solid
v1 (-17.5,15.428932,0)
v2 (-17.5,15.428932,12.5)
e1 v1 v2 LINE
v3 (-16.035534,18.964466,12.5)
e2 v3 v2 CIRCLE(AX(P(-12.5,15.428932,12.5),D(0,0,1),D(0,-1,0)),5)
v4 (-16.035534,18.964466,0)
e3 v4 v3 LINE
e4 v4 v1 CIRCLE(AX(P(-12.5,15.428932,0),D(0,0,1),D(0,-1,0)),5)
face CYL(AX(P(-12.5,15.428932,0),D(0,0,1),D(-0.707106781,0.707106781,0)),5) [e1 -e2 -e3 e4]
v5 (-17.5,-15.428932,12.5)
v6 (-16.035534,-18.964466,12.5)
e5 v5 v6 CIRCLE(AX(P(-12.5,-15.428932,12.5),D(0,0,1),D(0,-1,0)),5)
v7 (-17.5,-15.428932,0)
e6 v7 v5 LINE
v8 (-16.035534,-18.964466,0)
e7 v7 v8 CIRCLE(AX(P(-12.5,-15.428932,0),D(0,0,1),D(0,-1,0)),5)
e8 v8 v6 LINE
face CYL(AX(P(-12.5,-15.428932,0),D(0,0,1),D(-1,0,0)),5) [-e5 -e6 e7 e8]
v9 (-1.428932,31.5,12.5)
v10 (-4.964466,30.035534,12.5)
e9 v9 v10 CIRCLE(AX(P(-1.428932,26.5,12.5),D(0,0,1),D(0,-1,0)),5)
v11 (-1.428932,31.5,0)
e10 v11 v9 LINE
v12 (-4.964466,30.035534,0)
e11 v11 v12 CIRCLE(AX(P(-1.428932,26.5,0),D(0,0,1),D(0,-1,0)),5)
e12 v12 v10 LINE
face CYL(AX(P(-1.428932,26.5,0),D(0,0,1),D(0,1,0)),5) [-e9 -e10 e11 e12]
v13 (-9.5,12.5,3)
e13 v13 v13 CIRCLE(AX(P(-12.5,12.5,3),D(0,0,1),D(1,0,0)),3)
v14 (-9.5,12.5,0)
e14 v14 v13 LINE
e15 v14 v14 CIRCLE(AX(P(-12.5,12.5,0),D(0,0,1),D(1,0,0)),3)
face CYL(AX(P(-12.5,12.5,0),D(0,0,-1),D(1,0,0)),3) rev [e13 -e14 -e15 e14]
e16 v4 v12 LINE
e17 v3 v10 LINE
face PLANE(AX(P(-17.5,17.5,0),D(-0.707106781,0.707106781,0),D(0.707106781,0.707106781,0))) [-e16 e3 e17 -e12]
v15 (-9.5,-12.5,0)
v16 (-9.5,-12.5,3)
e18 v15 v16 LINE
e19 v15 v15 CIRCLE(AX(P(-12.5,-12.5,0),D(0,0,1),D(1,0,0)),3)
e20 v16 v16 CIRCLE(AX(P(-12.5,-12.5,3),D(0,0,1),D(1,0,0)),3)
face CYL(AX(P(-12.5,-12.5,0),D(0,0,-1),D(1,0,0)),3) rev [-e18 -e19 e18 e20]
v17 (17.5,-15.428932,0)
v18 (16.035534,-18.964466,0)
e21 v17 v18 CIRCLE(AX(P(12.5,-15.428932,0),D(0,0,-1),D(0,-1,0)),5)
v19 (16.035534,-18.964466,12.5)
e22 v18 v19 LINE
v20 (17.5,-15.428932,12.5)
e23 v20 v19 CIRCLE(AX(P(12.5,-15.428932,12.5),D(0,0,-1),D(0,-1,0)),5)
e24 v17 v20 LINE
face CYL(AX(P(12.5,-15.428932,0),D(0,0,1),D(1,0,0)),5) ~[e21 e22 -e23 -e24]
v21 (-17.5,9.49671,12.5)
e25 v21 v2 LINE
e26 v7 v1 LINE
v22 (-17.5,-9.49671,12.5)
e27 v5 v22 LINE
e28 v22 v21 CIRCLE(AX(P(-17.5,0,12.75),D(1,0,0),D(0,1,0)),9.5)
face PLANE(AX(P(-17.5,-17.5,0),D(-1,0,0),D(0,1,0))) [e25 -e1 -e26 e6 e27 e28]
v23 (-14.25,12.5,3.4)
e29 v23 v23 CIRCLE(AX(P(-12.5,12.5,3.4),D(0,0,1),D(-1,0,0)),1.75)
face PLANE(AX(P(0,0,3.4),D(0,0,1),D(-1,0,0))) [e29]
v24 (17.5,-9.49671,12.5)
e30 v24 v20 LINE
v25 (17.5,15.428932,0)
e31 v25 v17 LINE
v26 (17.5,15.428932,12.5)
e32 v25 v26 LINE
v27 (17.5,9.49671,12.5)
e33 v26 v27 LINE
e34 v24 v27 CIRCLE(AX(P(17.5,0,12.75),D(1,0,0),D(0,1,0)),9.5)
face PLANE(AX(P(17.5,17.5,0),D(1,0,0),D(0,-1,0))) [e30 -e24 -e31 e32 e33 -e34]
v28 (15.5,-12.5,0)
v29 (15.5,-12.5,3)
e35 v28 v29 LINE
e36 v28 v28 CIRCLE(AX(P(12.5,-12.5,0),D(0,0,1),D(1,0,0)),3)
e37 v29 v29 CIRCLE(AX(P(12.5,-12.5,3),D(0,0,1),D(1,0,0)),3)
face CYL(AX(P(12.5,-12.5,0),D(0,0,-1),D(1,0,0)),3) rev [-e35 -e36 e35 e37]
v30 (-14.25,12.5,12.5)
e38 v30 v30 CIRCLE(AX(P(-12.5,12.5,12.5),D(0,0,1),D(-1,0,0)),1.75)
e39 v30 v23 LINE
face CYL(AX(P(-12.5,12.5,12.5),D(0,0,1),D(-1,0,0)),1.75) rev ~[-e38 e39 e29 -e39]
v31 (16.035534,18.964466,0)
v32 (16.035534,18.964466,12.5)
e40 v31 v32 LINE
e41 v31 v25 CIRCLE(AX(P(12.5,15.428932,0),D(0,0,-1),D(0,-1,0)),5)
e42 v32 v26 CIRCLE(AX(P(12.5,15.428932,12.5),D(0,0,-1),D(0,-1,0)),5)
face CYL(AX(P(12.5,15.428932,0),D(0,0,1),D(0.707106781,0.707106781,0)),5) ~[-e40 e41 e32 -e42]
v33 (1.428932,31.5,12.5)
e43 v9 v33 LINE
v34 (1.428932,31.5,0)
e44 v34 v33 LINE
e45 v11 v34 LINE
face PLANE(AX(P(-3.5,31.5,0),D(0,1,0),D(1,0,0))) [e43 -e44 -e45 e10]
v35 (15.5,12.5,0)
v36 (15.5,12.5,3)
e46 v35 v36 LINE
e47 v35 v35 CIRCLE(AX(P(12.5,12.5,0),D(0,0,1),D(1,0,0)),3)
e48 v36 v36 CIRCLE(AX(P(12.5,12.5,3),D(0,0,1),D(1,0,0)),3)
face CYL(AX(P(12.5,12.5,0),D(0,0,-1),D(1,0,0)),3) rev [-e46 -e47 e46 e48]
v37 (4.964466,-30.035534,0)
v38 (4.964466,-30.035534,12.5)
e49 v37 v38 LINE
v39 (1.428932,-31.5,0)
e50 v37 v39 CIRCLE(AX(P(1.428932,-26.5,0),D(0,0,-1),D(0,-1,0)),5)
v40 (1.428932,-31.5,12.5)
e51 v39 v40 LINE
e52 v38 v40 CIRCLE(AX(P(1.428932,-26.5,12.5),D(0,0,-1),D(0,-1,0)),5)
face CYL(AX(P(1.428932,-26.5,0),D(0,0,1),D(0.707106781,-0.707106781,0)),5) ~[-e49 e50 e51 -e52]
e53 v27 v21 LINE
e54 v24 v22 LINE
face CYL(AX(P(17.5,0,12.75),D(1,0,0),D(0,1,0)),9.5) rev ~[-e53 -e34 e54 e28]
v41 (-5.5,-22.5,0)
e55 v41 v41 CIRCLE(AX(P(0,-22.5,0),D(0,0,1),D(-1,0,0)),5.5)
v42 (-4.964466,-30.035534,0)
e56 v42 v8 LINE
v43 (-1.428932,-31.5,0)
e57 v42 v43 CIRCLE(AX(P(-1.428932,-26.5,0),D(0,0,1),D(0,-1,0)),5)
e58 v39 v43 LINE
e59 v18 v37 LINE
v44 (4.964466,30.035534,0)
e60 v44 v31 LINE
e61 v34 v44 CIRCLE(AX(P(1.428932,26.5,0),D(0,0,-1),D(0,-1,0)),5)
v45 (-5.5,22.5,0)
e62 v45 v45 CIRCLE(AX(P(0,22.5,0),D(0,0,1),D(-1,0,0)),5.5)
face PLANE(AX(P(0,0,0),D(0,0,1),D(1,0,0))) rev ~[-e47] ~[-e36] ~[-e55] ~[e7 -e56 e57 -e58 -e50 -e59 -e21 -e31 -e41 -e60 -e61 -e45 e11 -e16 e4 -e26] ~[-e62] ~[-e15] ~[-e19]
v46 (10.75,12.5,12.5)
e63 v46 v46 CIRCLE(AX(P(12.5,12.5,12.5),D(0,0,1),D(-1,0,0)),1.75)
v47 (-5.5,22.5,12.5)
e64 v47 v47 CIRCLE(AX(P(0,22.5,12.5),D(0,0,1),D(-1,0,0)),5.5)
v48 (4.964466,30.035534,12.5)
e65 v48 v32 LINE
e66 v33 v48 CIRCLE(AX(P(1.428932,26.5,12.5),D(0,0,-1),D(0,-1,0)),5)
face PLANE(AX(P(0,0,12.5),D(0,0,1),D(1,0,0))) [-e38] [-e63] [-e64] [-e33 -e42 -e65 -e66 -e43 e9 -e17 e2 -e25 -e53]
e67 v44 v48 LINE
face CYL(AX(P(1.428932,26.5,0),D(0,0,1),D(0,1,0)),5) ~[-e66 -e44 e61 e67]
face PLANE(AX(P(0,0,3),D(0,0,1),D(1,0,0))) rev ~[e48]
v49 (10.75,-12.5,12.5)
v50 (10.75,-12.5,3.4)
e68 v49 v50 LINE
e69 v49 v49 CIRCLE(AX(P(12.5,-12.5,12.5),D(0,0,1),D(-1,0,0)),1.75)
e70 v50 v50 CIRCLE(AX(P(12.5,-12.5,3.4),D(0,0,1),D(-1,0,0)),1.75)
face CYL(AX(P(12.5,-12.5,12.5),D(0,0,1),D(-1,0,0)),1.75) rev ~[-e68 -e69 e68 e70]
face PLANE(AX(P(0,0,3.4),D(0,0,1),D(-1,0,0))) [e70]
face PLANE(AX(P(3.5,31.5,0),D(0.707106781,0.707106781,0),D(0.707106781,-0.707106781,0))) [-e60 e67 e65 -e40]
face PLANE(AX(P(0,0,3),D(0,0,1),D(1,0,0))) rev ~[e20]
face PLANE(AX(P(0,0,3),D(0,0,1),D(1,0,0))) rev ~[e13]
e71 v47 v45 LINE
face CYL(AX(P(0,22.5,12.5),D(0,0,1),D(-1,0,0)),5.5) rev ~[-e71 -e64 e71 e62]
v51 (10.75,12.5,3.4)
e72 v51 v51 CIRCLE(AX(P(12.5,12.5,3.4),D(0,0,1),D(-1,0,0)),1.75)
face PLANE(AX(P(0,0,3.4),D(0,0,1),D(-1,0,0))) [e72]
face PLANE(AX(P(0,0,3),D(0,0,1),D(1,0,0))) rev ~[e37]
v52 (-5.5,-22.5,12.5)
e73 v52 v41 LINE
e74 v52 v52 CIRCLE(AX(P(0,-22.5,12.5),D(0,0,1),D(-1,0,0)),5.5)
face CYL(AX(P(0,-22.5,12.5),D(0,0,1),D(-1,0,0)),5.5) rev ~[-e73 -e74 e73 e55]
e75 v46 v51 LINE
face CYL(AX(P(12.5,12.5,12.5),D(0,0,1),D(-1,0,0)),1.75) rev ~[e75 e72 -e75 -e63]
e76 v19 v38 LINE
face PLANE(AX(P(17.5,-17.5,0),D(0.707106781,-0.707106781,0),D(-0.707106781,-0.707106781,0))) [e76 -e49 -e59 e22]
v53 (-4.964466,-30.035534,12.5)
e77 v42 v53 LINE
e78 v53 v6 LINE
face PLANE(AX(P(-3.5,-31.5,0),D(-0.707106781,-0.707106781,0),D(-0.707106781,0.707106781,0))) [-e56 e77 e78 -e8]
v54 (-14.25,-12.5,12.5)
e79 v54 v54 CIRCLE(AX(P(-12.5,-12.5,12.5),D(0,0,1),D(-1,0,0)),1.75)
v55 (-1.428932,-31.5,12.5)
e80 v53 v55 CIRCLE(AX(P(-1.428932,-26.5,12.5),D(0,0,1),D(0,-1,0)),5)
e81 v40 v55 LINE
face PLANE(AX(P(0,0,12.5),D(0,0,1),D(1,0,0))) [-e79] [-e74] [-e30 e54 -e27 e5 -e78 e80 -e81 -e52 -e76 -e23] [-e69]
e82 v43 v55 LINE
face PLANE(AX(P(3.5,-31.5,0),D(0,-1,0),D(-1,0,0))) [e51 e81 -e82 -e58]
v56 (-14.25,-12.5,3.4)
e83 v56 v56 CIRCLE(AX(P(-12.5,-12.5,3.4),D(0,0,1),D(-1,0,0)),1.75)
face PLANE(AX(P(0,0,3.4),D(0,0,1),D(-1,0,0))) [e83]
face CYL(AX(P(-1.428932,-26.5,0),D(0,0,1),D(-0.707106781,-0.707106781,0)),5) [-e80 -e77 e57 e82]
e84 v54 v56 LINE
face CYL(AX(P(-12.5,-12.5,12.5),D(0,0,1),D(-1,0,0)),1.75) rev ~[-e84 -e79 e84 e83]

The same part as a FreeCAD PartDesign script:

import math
import FreeCAD as App
import Part
import Sketcher

V = App.Vector


def edges_at(feature, points):
    """Names of the edges that pass closest to the given points."""
    edges = feature.Shape.Edges
    near = lambda p: min(range(len(edges)), key=lambda i: edges[i].distToShape(Part.Vertex(*p))[0])
    return sorted({f"Edge{near(p) + 1}" for p in points})

doc = App.newDocument("Part")
body = doc.addObject("PartDesign::Body", "Body")

# Sketch on XY plane
sketch1 = doc.addObject("Sketcher::SketchObject", "Sketch")
body.addObject(sketch1)
sketch1.AttachmentSupport = (doc.XY_Plane, [""])
sketch1.MapMode = "FlatFace"
sketch1.addGeometry([
    Part.LineSegment(V(4, 32, 0), V(-4, 32, 0)),  # 0
    Part.LineSegment(V(-4, 32, 0), V(-18, 18, 0)),  # 1
    Part.LineSegment(V(-18, 18, 0), V(-18, -18, 0)),  # 2
    Part.LineSegment(V(-18, -18, 0), V(-4, -32, 0)),  # 3
    Part.LineSegment(V(-4, -32, 0), V(4, -32, 0)),  # 4
    Part.LineSegment(V(4, -32, 0), V(18, -18, 0)),  # 5
    Part.LineSegment(V(18, -18, 0), V(18, 18, 0)),  # 6
    Part.LineSegment(V(18, 18, 0), V(4, 32, 0)),  # 7
], False)
sketch1.addConstraint([
    Sketcher.Constraint("Coincident", 0, 2, 1, 1),
    Sketcher.Constraint("Coincident", 1, 2, 2, 1),
    Sketcher.Constraint("Coincident", 2, 2, 3, 1),
    Sketcher.Constraint("Coincident", 3, 2, 4, 1),
    Sketcher.Constraint("Coincident", 4, 2, 5, 1),
    Sketcher.Constraint("Coincident", 5, 2, 6, 1),
    Sketcher.Constraint("Coincident", 6, 2, 7, 1),
    Sketcher.Constraint("Coincident", 7, 2, 0, 1),
    Sketcher.Constraint("Horizontal", 0),
    Sketcher.Constraint("Vertical", 2),
    Sketcher.Constraint("Horizontal", 4),
    Sketcher.Constraint("Vertical", 6),
    Sketcher.Constraint("Symmetric", 0, 2, 4, 2, -1, 1),
    Sketcher.Constraint("Symmetric", 1, 2, 5, 2, -1, 1),
    Sketcher.Constraint("Perpendicular", 1, 3),
    Sketcher.Constraint("Perpendicular", 5, 7),
    Sketcher.Constraint("Horizontal", 2, 2, 5, 2),
    Sketcher.Constraint("Horizontal", 1, 2, 6, 2),
    Sketcher.Constraint("Vertical", 0, 2, 3, 2),
    Sketcher.Constraint("DistanceY", 2, 2, 2, 1, 35.0),
    Sketcher.Constraint("DistanceX", 1, 2, 0, 2, 14.0),
    Sketcher.Constraint("DistanceX", 2, 2, 5, 2, 35.0),
])
pad1 = doc.addObject("PartDesign::Pad", "Pad")
body.addObject(pad1)
pad1.Profile = sketch1
pad1.Length = 12.5

# Sketch on XY plane
sketch2 = doc.addObject("Sketcher::SketchObject", "Sketch001")
body.addObject(sketch2)
sketch2.AttachmentSupport = (doc.XY_Plane, [""])
sketch2.MapMode = "FlatFace"
sketch2.addGeometry([
    Part.Circle(V(-12.5, 12.5, 0), V(0, 0, 1), 3),
    Part.Circle(V(-12.5, -12.5, 0), V(0, 0, 1), 3),
    Part.Circle(V(12.5, -12.5, 0), V(0, 0, 1), 3),
    Part.Circle(V(12.5, 12.5, 0), V(0, 0, 1), 3),
], False)
sketch2.addConstraint([
    Sketcher.Constraint("Equal", 0, 1),
    Sketcher.Constraint("Equal", 1, 2),
    Sketcher.Constraint("Equal", 2, 3),
    Sketcher.Constraint("Symmetric", 0, 3, 2, 3, -1, 1),
    Sketcher.Constraint("Symmetric", 1, 3, 3, 3, -1, 1),
    Sketcher.Constraint("Symmetric", 1, 3, 2, 3, -2),
    Sketcher.Constraint("Diameter", 0, 6.0),
    Sketcher.Constraint("DistanceX", 0, 3, -1, 1, 12.5),
    Sketcher.Constraint("DistanceY", -1, 1, 0, 3, 12.5),
])
pocket1 = doc.addObject("PartDesign::Pocket", "Pocket")
body.addObject(pocket1)
pocket1.Profile = sketch2
pocket1.Length = 3
pocket1.Reversed = True

# Sketch on YZ plane
sketch3 = doc.addObject("Sketcher::SketchObject", "Sketch002")
body.addObject(sketch3)
sketch3.AttachmentSupport = (doc.YZ_Plane, [""])
sketch3.MapMode = "FlatFace"
sketch3.AttachmentOffset = App.Placement(V(0, 0, 17.5), App.Rotation())
sketch3.addGeometry([
    Part.LineSegment(V(9, 12, 0), V(-9, 12, 0)),
    Part.ArcOfCircle(Part.Circle(V(0, 13, 0), V(0, 0, 1), 10), math.radians(-178), math.radians(-2)),
], False)
sketch3.addConstraint([
    Sketcher.Constraint("Coincident", 0, 1, 1, 2),
    Sketcher.Constraint("Coincident", 1, 1, 0, 2),
    Sketcher.Constraint("Horizontal", 0),
    Sketcher.Constraint("PointOnObject", 1, 3, -2),
    Sketcher.Constraint("Radius", 1, 9.5),
    Sketcher.Constraint("DistanceY", -1, 1, 1, 3, 12.75),
    Sketcher.Constraint("DistanceY", -1, 1, 0, 1, 12.5),
])
pocket2 = doc.addObject("PartDesign::Pocket", "Pocket001")
body.addObject(pocket2)
pocket2.Profile = sketch3
pocket2.Length = 35

# Sketch on XY plane
sketch4 = doc.addObject("Sketcher::SketchObject", "Sketch003")
body.addObject(sketch4)
sketch4.AttachmentSupport = (doc.XY_Plane, [""])
sketch4.MapMode = "FlatFace"
sketch4.AttachmentOffset = App.Placement(V(0, 0, 12.5), App.Rotation())
sketch4.addGeometry([
    Part.Circle(V(-12.5, 12.5, 0), V(0, 0, 1), 1.8),
    Part.Circle(V(-12.5, -12.5, 0), V(0, 0, 1), 1.8),
    Part.Circle(V(12.5, -12.5, 0), V(0, 0, 1), 1.8),
    Part.Circle(V(12.5, 12.5, 0), V(0, 0, 1), 1.8),
], False)
sketch4.addConstraint([
    Sketcher.Constraint("Equal", 0, 1),
    Sketcher.Constraint("Equal", 1, 2),
    Sketcher.Constraint("Equal", 2, 3),
    Sketcher.Constraint("Symmetric", 0, 3, 2, 3, -1, 1),
    Sketcher.Constraint("Symmetric", 1, 3, 3, 3, -1, 1),
    Sketcher.Constraint("Symmetric", 1, 3, 2, 3, -2),
    Sketcher.Constraint("Diameter", 0, 3.5),
    Sketcher.Constraint("DistanceY", 1, 3, 0, 3, 25.0),
    Sketcher.Constraint("DistanceX", 1, 3, 2, 3, 25.0),
])
pocket3 = doc.addObject("PartDesign::Pocket", "Pocket002")
body.addObject(pocket3)
pocket3.Profile = sketch4
pocket3.Length = 9.1

# Sketch on XY plane
sketch5 = doc.addObject("Sketcher::SketchObject", "Sketch004")
body.addObject(sketch5)
sketch5.AttachmentSupport = (doc.XY_Plane, [""])
sketch5.MapMode = "FlatFace"
sketch5.AttachmentOffset = App.Placement(V(0, 0, 12.5), App.Rotation())
sketch5.addGeometry([
    Part.Circle(V(0, -22, 0), V(0, 0, 1), 6),
    Part.Circle(V(0, 22, 0), V(0, 0, 1), 6),
], False)
sketch5.addConstraint([
    Sketcher.Constraint("Equal", 0, 1),
    Sketcher.Constraint("Symmetric", 0, 3, 1, 3, -1, 1),
    Sketcher.Constraint("PointOnObject", 0, 3, -2),
    Sketcher.Constraint("Diameter", 0, 11.0),
    Sketcher.Constraint("DistanceY", 0, 3, 1, 3, 45.0),
])
pocket4 = doc.addObject("PartDesign::Pocket", "Pocket003")
body.addObject(pocket4)
pocket4.Profile = sketch5
pocket4.Type = "ThroughAll"
doc.recompute()

fillet = doc.addObject("PartDesign::Fillet", "Fillet")
body.addObject(fillet)
fillet.Base = (pocket4, edges_at(pocket4, [
    (-17.5, 17.5, 6.25),
    (-3.5, 31.5, 6.25),
    (3.5, 31.5, 6.25),
    (17.5, 17.5, 6.25),
    (-17.5, -17.5, 6.25),
    (-3.5, -31.5, 6.25),
    (3.5, -31.5, 6.25),
    (17.5, -17.5, 6.25),
]))
fillet.Radius = 5

doc.recompute()
